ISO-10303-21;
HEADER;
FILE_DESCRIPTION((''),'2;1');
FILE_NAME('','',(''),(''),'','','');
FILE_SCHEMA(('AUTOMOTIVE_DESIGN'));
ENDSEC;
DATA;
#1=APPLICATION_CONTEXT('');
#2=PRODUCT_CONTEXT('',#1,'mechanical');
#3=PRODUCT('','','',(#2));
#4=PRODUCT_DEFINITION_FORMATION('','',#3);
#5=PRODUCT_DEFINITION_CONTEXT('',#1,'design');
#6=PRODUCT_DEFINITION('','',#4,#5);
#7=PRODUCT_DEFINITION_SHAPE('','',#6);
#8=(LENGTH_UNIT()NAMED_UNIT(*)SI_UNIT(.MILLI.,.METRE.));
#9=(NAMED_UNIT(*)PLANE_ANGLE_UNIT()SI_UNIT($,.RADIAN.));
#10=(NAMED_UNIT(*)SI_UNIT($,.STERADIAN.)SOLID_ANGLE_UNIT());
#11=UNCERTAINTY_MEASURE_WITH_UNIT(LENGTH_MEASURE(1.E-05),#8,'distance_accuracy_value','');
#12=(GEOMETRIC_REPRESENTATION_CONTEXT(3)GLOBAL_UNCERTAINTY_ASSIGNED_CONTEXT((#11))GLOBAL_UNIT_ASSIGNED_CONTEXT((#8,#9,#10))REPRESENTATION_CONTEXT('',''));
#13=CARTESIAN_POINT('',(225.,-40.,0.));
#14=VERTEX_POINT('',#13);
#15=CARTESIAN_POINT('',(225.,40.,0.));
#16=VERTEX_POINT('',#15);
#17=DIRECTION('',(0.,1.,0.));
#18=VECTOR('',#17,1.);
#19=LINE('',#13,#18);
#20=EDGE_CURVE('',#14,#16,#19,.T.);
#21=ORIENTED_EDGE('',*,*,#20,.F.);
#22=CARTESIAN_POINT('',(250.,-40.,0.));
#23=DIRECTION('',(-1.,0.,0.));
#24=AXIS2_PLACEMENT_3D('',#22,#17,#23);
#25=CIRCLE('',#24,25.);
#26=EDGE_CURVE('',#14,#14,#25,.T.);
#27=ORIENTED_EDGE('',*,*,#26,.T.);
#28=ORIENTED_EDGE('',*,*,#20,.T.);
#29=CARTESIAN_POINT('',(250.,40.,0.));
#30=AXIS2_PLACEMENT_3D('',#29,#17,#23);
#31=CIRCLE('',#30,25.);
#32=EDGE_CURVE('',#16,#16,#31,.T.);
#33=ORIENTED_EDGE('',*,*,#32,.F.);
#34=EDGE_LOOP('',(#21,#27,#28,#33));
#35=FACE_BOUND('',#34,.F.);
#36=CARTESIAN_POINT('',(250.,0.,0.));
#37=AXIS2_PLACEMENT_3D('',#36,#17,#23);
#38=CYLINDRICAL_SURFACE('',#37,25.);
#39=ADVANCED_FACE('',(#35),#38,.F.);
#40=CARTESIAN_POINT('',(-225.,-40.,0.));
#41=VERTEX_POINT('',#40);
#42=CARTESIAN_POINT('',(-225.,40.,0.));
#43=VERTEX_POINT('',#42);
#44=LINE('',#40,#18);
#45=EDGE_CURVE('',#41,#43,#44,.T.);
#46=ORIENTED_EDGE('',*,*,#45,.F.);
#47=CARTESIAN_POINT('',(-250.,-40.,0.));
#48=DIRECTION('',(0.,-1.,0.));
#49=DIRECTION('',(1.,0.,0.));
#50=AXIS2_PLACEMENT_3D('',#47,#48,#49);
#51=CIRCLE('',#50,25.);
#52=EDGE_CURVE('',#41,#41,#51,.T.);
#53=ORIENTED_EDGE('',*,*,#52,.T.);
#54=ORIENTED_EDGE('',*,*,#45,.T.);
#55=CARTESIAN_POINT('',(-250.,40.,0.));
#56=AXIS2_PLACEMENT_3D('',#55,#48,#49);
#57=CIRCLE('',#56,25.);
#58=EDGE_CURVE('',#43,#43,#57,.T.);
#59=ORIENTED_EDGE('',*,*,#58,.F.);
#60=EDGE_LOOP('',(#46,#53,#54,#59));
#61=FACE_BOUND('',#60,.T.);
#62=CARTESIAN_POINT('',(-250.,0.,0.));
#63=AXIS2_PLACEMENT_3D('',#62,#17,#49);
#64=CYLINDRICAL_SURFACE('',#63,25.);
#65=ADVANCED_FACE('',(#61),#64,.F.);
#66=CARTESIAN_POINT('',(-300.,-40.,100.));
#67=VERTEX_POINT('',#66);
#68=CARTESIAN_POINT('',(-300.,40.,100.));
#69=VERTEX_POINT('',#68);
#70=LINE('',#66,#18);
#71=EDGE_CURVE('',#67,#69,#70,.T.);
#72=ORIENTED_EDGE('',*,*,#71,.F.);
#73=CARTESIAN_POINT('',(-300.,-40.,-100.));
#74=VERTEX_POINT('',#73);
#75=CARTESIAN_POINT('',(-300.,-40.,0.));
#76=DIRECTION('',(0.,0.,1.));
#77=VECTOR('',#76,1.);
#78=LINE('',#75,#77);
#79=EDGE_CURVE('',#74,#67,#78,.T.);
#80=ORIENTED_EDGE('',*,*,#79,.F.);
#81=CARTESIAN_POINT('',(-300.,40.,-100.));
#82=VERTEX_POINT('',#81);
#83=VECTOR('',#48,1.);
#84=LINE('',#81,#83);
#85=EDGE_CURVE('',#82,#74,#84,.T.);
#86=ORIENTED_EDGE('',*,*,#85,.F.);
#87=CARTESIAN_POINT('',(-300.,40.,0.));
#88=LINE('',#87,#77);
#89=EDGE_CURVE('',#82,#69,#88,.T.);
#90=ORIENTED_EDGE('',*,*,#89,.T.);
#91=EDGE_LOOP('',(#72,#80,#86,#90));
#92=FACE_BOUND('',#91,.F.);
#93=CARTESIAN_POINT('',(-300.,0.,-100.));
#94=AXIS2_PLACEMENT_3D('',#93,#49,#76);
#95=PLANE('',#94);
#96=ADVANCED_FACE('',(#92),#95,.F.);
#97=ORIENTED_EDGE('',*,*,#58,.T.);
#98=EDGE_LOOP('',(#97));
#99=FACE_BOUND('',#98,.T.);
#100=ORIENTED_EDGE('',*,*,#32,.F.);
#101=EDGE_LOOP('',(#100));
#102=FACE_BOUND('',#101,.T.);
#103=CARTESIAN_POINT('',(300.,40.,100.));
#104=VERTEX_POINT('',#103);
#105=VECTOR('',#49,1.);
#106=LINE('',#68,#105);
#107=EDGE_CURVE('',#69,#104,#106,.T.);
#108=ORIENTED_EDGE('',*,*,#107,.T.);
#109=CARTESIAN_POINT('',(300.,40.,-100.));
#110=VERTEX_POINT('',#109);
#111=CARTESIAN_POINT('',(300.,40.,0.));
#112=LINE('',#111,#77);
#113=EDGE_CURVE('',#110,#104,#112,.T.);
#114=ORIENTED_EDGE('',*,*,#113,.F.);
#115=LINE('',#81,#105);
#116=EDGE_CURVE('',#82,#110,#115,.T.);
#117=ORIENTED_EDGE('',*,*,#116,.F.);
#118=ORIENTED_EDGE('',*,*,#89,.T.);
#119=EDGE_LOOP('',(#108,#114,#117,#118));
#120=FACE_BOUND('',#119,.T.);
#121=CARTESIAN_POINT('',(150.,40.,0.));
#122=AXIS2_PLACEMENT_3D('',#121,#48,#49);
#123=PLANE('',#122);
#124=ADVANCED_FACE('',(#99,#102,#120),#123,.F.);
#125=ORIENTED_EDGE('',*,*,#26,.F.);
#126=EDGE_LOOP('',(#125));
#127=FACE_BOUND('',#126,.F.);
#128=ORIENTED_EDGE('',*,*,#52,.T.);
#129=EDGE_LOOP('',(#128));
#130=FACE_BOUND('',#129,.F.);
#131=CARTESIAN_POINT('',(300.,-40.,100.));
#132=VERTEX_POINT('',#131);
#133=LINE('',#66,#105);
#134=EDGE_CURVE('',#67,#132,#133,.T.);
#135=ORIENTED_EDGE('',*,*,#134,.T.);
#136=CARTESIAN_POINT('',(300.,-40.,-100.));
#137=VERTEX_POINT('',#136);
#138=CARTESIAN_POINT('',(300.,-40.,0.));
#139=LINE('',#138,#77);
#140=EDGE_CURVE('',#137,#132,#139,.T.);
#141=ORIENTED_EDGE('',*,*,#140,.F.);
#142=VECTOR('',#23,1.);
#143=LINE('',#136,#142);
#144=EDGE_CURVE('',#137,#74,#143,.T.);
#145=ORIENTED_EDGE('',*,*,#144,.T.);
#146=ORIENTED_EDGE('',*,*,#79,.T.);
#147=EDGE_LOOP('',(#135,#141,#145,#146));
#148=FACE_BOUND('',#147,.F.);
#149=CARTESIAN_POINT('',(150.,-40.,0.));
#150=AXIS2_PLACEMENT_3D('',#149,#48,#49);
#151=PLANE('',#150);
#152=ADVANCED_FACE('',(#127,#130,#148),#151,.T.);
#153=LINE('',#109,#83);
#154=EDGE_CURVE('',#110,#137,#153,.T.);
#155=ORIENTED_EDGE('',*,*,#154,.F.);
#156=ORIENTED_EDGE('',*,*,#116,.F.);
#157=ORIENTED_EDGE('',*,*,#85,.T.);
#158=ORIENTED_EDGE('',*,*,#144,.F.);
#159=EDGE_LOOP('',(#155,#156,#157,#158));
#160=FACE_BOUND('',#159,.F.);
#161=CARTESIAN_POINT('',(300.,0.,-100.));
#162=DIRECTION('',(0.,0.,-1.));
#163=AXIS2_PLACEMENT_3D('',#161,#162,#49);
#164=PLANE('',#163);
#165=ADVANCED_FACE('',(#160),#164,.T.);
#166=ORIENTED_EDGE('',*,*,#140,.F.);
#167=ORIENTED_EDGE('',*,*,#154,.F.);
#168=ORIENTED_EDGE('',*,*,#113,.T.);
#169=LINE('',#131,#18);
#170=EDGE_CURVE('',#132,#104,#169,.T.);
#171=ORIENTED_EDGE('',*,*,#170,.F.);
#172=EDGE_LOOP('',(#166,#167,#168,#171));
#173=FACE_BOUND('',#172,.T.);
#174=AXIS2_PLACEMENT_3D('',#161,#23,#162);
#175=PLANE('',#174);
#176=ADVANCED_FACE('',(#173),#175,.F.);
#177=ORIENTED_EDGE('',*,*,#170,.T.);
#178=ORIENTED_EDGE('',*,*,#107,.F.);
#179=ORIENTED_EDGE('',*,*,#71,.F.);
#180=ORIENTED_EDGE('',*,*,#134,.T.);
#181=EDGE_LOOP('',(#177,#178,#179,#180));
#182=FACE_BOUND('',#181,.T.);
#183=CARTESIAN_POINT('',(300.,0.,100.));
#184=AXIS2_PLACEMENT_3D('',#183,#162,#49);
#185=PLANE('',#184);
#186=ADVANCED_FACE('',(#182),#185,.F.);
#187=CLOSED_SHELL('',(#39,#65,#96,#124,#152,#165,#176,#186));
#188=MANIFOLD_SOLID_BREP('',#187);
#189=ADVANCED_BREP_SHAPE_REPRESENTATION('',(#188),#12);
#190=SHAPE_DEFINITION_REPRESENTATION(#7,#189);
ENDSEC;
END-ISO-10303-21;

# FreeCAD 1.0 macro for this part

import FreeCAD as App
import Part
import Sketcher
Q = App.Units.Quantity

doc = App.newDocument("Part")
params = doc.addObject("Spreadsheet::Sheet", "Params")
for row, (alias, value) in enumerate([
    ("sketch1_diameter", "50 mm"),
    ("sketch1_width", "300 mm"),
    ("sketch1_height", "200 mm"),
    ("pad1_length", "80 mm"),
], start=1):
    params.set(f"A{row}", alias)
    params.set(f"B{row}", "=" + value)
    params.setAlias(f"B{row}", alias)

body = doc.addObject("PartDesign::Body", "Body")

# Sketch on XZ plane
sketch1 = body.newObject("Sketcher::SketchObject", "Sketch")
sketch1.AttachmentSupport = (doc.getObject("XZ_Plane"), [""])
sketch1.MapMode = "FlatFace"
sketch1.addGeometry([
    Part.LineSegment(App.Vector(-300, 100, 0), App.Vector(-300, -100, 0)),  # 0
    Part.LineSegment(App.Vector(-300, -100, 0), App.Vector(0, -100, 0)),  # 1
    Part.LineSegment(App.Vector(0, -100, 0), App.Vector(0, 100, 0)),  # 2
    Part.LineSegment(App.Vector(0, 100, 0), App.Vector(-300, 100, 0)),  # 3
    Part.Circle(App.Vector(-250, 0, 0), App.Vector(0, 0, 1), 25),  # 4
], False)
sketch1.addConstraint([
    Sketcher.Constraint("Coincident", 0, 2, 1, 1),
    Sketcher.Constraint("Coincident", 1, 2, 2, 1),
    Sketcher.Constraint("Coincident", 2, 2, 3, 1),
    Sketcher.Constraint("Coincident", 3, 2, 0, 1),
    Sketcher.Constraint("Vertical", 0),
    Sketcher.Constraint("Horizontal", 1),
    Sketcher.Constraint("Vertical", 2),
    Sketcher.Constraint("Horizontal", 3),
    Sketcher.Constraint("Symmetric", 1, 2, 2, 2, -1, 1),
    Sketcher.Constraint("PointOnObject", 4, 3, -1),
    Sketcher.Constraint("Diameter", 4, Q("50 mm")),
    Sketcher.Constraint("DistanceX", 1, 1, 1, 2, Q("300 mm")),
    Sketcher.Constraint("DistanceY", 0, 2, 0, 1, Q("200 mm")),
    Sketcher.Constraint("DistanceX", 4, 3, -1, 1, Q("250 mm")),
])
sketch1.setExpression("Constraints[10]", "Params.sketch1_diameter")
sketch1.setExpression("Constraints[11]", "Params.sketch1_width")
sketch1.setExpression("Constraints[12]", "Params.sketch1_height")
pad1 = body.newObject("PartDesign::Pad", "Pad")
pad1.Profile = sketch1
pad1.setExpression("Length", "Params.pad1_length")
pad1.Midplane = True
body2 = doc.addObject("PartDesign::Body", "Body001")
doc.recompute()

mirroring = doc.addObject("Part::Mirroring", "Mirroring")
mirroring.Source = body
mirroring.Base = App.Vector(0, 0, 0)
mirroring.Normal = App.Vector(1, 0, 0)
body2.BaseFeature = mirroring
doc.recompute()
body3 = doc.addObject("PartDesign::Body", "Body002")
doc.recompute()

body3.BaseFeature = body
doc.recompute()

mirroring2 = doc.addObject("Part::Mirroring", "Mirroring001")
mirroring2.Source = body
mirroring2.Base = App.Vector(0, 0, 0)
mirroring2.Normal = App.Vector(1, 0, 0)
body4 = doc.addObject("PartDesign::Body", "Body003")
body4.BaseFeature = mirroring2
boolean = body3.newObject("PartDesign::Boolean", "Boolean")
boolean.Type = "Fuse"
boolean.addObjects([body4])
doc.recompute()
body2.Visibility = False
mirroring.Visibility = False
mirroring2.Visibility = False

doc.recompute()
